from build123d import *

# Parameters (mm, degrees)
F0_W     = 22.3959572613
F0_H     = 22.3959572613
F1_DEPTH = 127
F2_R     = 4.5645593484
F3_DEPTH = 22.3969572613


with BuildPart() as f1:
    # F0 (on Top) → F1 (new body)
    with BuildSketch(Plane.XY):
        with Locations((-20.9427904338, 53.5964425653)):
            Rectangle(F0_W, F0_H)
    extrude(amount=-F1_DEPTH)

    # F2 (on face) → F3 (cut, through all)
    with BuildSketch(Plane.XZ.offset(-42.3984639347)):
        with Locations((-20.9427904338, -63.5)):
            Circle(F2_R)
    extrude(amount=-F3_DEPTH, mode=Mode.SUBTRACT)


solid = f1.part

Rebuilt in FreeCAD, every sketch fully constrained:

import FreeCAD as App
import Part
import Sketcher
from FreeCAD import Vector
Q = App.Units.Quantity

doc = App.newDocument("Part")
body = doc.addObject("PartDesign::Body", "Body")

# Sketch on XY plane
sketch1 = doc.addObject("Sketcher::SketchObject", "Sketch")
body.addObject(sketch1)
sketch1.AttachmentSupport = (doc.XY_Plane, [""])
sketch1.MapMode = "FlatFace"
sketch1.addGeometry([
    Part.LineSegment(Vector(-32.140769, 64.794421, 0), Vector(-32.140769, 42.398464, 0)),
    Part.LineSegment(Vector(-32.140769, 42.398464, 0), Vector(-9.744812, 42.398464, 0)),
    Part.LineSegment(Vector(-9.744812, 42.398464, 0), Vector(-9.744812, 64.794421, 0)),
    Part.LineSegment(Vector(-9.744812, 64.794421, 0), Vector(-32.140769, 64.794421, 0)),
], False)
sketch1.addConstraint([
    Sketcher.Constraint("Coincident", 0, 2, 1, 1),
    Sketcher.Constraint("Coincident", 1, 2, 2, 1),
    Sketcher.Constraint("Coincident", 2, 2, 3, 1),
    Sketcher.Constraint("Coincident", 3, 2, 0, 1),
    Sketcher.Constraint("Vertical", 0),
    Sketcher.Constraint("Horizontal", 1),
    Sketcher.Constraint("Vertical", 2),
    Sketcher.Constraint("Horizontal", 3),
    Sketcher.Constraint("Equal", 3, 0),
    Sketcher.Constraint("DistanceX", 1, 1, 1, 2, Q("22.395957 mm")),
    Sketcher.Constraint("DistanceX", 0, 2, -1, 1, Q("32.140769 mm")),
    Sketcher.Constraint("DistanceY", -1, 1, 2, 2, Q("64.794421 mm")),
])
pad1 = doc.addObject("PartDesign::Pad", "Pad")
body.addObject(pad1)
pad1.Profile = sketch1
pad1.Length = Q("5 in")
pad1.Reversed = True

# Sketch on XZ plane
sketch2 = doc.addObject("Sketcher::SketchObject", "Sketch001")
body.addObject(sketch2)
sketch2.AttachmentSupport = (doc.XZ_Plane, [""])
sketch2.MapMode = "FlatFace"
sketch2.AttachmentOffset = App.Placement(Vector(0, 0, -42.398464), App.Rotation())
sketch2.addGeometry(Part.Circle(Vector(-20.94279, -63.5, 0), Vector(0, 0, 1), 4.564559), False)
sketch2.addConstraint([
    Sketcher.Constraint("DistanceY", 0, 3, -1, 1, Q("2.5 in")),
    Sketcher.Constraint("Diameter", 0, Q("9.129119 mm")),
    Sketcher.Constraint("DistanceX", 0, 3, -1, 1, Q("20.94279 mm")),
])
pocket1 = doc.addObject("PartDesign::Pocket", "Pocket")
body.addObject(pocket1)
pocket1.Profile = sketch2
pocket1.Type = "ThroughAll"

doc.recompute()
